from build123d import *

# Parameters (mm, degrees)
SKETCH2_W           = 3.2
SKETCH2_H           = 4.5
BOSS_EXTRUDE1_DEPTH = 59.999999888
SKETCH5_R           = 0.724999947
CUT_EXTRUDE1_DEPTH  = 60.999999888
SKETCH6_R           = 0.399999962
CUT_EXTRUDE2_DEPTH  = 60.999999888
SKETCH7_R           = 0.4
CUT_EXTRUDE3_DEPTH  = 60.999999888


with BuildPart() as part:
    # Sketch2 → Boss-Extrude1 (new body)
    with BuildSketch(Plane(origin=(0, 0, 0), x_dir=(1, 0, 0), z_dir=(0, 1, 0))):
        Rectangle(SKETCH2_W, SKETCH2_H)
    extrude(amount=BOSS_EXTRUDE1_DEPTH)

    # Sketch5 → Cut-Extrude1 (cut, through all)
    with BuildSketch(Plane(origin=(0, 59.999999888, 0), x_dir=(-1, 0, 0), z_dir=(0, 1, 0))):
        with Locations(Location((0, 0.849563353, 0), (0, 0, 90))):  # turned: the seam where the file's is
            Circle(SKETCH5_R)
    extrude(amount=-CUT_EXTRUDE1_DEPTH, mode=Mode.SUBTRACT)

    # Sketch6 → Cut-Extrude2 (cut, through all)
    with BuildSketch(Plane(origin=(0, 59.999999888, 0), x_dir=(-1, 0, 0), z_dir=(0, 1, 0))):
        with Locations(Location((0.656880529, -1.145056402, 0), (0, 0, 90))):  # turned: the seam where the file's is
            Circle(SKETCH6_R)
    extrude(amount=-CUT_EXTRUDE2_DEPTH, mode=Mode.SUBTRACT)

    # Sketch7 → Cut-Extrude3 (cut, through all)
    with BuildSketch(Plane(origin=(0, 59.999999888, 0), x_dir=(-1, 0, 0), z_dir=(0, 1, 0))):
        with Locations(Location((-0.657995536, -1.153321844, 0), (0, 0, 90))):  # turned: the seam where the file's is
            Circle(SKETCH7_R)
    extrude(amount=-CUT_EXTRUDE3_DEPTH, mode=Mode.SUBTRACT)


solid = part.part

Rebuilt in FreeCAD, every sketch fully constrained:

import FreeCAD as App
import Part
import Sketcher
from FreeCAD import Vector
Q = App.Units.Quantity


def add_polygon(sketch, points):
    """Adds a closed chain of lines whose ends are joined by coincident constraints."""
    first, n = sketch.GeometryCount, len(points)
    for a, b in zip(points, points[1:] + points[:1]):
        sketch.addGeometry(Part.LineSegment(App.Vector(*a, 0), App.Vector(*b, 0)), False)
    for i in range(n):
        sketch.addConstraint(Sketcher.Constraint("Coincident", first + i, 2, first + (i + 1) % n, 1))

doc = App.newDocument("Part")
body = doc.addObject("PartDesign::Body", "Body")

# Sketch on XZ plane
sketch1 = body.newObject("Sketcher::SketchObject", "Sketch")
sketch1.AttachmentSupport = (doc.getObject("XZ_Plane"), [""])
sketch1.MapMode = "FlatFace"
add_polygon(sketch1, [(-1.6, -2.2), (-1.6, 2.2), (1.6, 2.2), (1.6, -2.2)])  # lines 0-3
sketch1.addConstraint(Sketcher.Constraint("Vertical", 0))
sketch1.addConstraint(Sketcher.Constraint("Horizontal", 1))
sketch1.addConstraint(Sketcher.Constraint("Vertical", 2))
sketch1.addConstraint(Sketcher.Constraint("Horizontal", 3))
sketch1.addConstraint(Sketcher.Constraint("Symmetric", 0, 2, 2, 2, -1, 1))
sketch1.addConstraint(Sketcher.Constraint("DistanceX", 1, 1, 1, 2, Q("3.2 mm")))
sketch1.addConstraint(Sketcher.Constraint("DistanceY", 0, 1, 0, 2, Q("4.5 mm")))
pad1 = body.newObject("PartDesign::Pad", "Pad")
pad1.Profile = sketch1
pad1.Length = 60
pad1.Reversed = True

# Sketch on XZ plane
sketch2 = body.newObject("Sketcher::SketchObject", "Sketch001")
sketch2.AttachmentSupport = (doc.getObject("XZ_Plane"), [""])
sketch2.MapMode = "FlatFace"
sketch2.AttachmentOffset = App.Placement(Vector(0, 0, -60), App.Rotation())
sketch2.addGeometry(Part.Circle(Vector(0, 0.8, 0), Vector(0, 0, 1), 0.7), False)
sketch2.addConstraint(Sketcher.Constraint("PointOnObject", 0, 3, -2))
sketch2.addConstraint(Sketcher.Constraint("Diameter", 0, Q("1.45 mm")))
sketch2.addConstraint(Sketcher.Constraint("DistanceY", -1, 1, 0, 3, Q("0.849563 mm")))
pocket1 = body.newObject("PartDesign::Pocket", "Pocket")
pocket1.Profile = sketch2
pocket1.Type = "ThroughAll"
pocket1.Reversed = True

# Sketch on XZ plane
sketch3 = body.newObject("Sketcher::SketchObject", "Sketch002")
sketch3.AttachmentSupport = (doc.getObject("XZ_Plane"), [""])
sketch3.MapMode = "FlatFace"
sketch3.AttachmentOffset = App.Placement(Vector(0, 0, -60), App.Rotation())
sketch3.addGeometry(Part.Circle(Vector(-0.66, -1.15, 0), Vector(0, 0, 1), 0.4), False)
sketch3.addConstraint(Sketcher.Constraint("Diameter", 0, Q("0.8 mm")))
sketch3.addConstraint(Sketcher.Constraint("DistanceX", 0, 3, -1, 1, Q("0.656881 mm")))
sketch3.addConstraint(Sketcher.Constraint("DistanceY", 0, 3, -1, 1, Q("1.145056 mm")))
pocket2 = body.newObject("PartDesign::Pocket", "Pocket001")
pocket2.Profile = sketch3
pocket2.Type = "ThroughAll"
pocket2.Reversed = True

# Sketch on XZ plane
sketch4 = body.newObject("Sketcher::SketchObject", "Sketch003")
sketch4.AttachmentSupport = (doc.getObject("XZ_Plane"), [""])
sketch4.MapMode = "FlatFace"
sketch4.AttachmentOffset = App.Placement(Vector(0, 0, -60), App.Rotation())
sketch4.addGeometry(Part.Circle(Vector(0.66, -1.15, 0), Vector(0, 0, 1), 0.4), False)
sketch4.addConstraint(Sketcher.Constraint("Diameter", 0, Q("0.8 mm")))
sketch4.addConstraint(Sketcher.Constraint("DistanceY", 0, 3, -1, 1, Q("1.153322 mm")))
sketch4.addConstraint(Sketcher.Constraint("DistanceX", -1, 1, 0, 3, Q("0.657996 mm")))
pocket3 = body.newObject("PartDesign::Pocket", "Pocket002")
pocket3.Profile = sketch4
pocket3.Type = "ThroughAll"
pocket3.Reversed = True

doc.recompute()
